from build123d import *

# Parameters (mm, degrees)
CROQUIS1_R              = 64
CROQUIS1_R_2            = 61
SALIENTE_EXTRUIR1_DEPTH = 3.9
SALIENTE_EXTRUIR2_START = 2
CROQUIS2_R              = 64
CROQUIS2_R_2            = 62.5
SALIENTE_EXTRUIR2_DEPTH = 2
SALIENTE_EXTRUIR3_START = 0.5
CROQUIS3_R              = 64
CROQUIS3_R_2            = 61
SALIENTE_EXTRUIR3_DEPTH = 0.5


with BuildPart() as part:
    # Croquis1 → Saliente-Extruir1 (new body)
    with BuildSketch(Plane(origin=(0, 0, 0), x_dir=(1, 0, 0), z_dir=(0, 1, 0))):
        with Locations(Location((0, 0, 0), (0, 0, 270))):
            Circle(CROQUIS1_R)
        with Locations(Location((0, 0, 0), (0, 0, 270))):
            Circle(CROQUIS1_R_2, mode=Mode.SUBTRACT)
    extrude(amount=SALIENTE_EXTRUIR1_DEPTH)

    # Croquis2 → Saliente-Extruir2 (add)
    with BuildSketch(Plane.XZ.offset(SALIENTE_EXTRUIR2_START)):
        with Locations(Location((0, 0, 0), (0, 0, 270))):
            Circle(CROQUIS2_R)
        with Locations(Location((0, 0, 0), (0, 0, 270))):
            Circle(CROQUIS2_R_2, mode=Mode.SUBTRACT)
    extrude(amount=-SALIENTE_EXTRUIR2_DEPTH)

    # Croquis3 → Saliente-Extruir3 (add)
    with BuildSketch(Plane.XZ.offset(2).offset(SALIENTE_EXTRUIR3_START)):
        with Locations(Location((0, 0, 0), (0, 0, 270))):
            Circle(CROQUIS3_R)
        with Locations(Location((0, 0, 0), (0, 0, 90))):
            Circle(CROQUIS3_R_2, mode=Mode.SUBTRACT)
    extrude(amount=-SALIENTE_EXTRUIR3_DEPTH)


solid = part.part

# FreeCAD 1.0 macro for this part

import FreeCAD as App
import Part
import Sketcher

V = App.Vector

doc = App.newDocument("Part")
params = doc.addObject("Spreadsheet::Sheet", "Params")
for row, (alias, value) in enumerate([
    ("sketch1_diameter", "128 mm"),
    ("sketch1_diameter2", "122 mm"),
    ("pad1_length", "3.9 mm"),
    ("sketch2_diameter", "128 mm"),
    ("sketch2_diameter2", "125 mm"),
    ("pad2_length", "2 mm"),
    ("sketch3_diameter", "128 mm"),
    ("sketch3_diameter2", "122 mm"),
    ("pad3_length", "0.5 mm"),
], start=1):
    params.set(f"A{row}", alias)
    params.set(f"B{row}", "=" + value)
    params.setAlias(f"B{row}", alias)

body = doc.addObject("PartDesign::Body", "Body")

# Sketch on XZ plane
sketch1 = body.newObject("Sketcher::SketchObject", "Sketch")
sketch1.AttachmentSupport = (doc.getObject("XZ_Plane"), [""])
sketch1.MapMode = "FlatFace"
sketch1.addGeometry([
    Part.Circle(V(0, 0, 0), V(0, 0, 1), 64),
    Part.Circle(V(0, 0, 0), V(0, 0, 1), 61),
], False)
sketch1.addConstraint([
    Sketcher.Constraint("Coincident", 0, 3, -1, 1),
    Sketcher.Constraint("Coincident", 1, 3, -1, 1),
    Sketcher.Constraint("Diameter", 0, 128.0),
    Sketcher.Constraint("Diameter", 1, 122.0),
])
sketch1.setExpression("Constraints[2]", "Params.sketch1_diameter")
sketch1.setExpression("Constraints[3]", "Params.sketch1_diameter2")
pad1 = body.newObject("PartDesign::Pad", "Pad")
pad1.Profile = sketch1
pad1.setExpression("Length", "Params.pad1_length")
pad1.Reversed = True

# Sketch on XZ plane
sketch2 = body.newObject("Sketcher::SketchObject", "Sketch001")
sketch2.AttachmentSupport = (doc.getObject("XZ_Plane"), [""])
sketch2.MapMode = "FlatFace"
sketch2.AttachmentOffset = App.Placement(V(0, 0, 2), App.Rotation())
sketch2.addGeometry([
    Part.Circle(V(0, 0, 0), V(0, 0, 1), 64),
    Part.Circle(V(0, 0, 0), V(0, 0, 1), 62.5),
], False)
sketch2.addConstraint([
    Sketcher.Constraint("Coincident", 0, 3, -1, 1),
    Sketcher.Constraint("Coincident", 1, 3, -1, 1),
    Sketcher.Constraint("Diameter", 0, 128.0),
    Sketcher.Constraint("Diameter", 1, 125.0),
])
sketch2.setExpression("Constraints[2]", "Params.sketch2_diameter")
sketch2.setExpression("Constraints[3]", "Params.sketch2_diameter2")
pad2 = body.newObject("PartDesign::Pad", "Pad001")
pad2.Profile = sketch2
pad2.setExpression("Length", "Params.pad2_length")
pad2.Reversed = True

# Sketch on XZ plane
sketch3 = body.newObject("Sketcher::SketchObject", "Sketch002")
sketch3.AttachmentSupport = (doc.getObject("XZ_Plane"), [""])
sketch3.MapMode = "FlatFace"
sketch3.AttachmentOffset = App.Placement(V(0, 0, 2.5), App.Rotation())
sketch3.addGeometry([
    Part.Circle(V(0, 0, 0), V(0, 0, 1), 64),
    Part.Circle(V(0, 0, 0), V(0, 0, 1), 61),
], False)
sketch3.addConstraint([
    Sketcher.Constraint("Coincident", 0, 3, -1, 1),
    Sketcher.Constraint("Coincident", 1, 3, -1, 1),
    Sketcher.Constraint("Diameter", 0, 128.0),
    Sketcher.Constraint("Diameter", 1, 122.0),
])
sketch3.setExpression("Constraints[2]", "Params.sketch3_diameter")
sketch3.setExpression("Constraints[3]", "Params.sketch3_diameter2")
pad3 = body.newObject("PartDesign::Pad", "Pad002")
pad3.Profile = sketch3
pad3.setExpression("Length", "Params.pad3_length")
pad3.Reversed = True

doc.recompute()
